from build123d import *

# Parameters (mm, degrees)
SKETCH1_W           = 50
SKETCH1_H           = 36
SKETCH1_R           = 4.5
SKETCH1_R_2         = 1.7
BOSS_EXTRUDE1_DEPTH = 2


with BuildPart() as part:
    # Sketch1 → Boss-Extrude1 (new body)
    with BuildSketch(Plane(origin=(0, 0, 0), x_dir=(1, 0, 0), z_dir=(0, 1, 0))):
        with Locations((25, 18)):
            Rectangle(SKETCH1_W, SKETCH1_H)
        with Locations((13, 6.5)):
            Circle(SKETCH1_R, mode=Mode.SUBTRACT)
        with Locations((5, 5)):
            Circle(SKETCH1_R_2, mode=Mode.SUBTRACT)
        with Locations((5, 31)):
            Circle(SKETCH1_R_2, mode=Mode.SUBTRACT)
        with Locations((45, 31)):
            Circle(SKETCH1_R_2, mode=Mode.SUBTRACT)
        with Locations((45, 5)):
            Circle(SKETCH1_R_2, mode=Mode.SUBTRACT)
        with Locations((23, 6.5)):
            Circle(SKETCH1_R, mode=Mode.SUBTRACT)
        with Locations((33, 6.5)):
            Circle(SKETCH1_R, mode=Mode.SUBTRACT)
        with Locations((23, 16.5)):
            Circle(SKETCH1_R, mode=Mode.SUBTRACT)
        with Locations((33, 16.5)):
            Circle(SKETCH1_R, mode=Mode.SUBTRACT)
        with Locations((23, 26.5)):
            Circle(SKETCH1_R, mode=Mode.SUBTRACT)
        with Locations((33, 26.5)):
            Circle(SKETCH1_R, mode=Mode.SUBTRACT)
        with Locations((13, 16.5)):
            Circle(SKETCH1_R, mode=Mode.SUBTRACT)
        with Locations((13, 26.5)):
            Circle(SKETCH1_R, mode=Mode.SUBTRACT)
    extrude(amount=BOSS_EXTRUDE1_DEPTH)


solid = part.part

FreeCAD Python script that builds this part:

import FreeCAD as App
import Part
import Sketcher

doc = App.newDocument("Part")
body = doc.addObject("PartDesign::Body", "Body")

sketch1 = body.newObject("Sketcher::SketchObject", "Sketch")
sketch1.AttachmentSupport = (doc.getObject("XZ_Plane"), [""])
sketch1.MapMode = "FlatFace"
sketch1.addGeometry(Part.LineSegment(App.Vector(0, -36, 0), App.Vector(0, 0, 0)), False)
sketch1.addGeometry(Part.LineSegment(App.Vector(0, 0, 0), App.Vector(50, 0, 0)), False)
sketch1.addGeometry(Part.LineSegment(App.Vector(50, 0, 0), App.Vector(50, -36, 0)), False)
sketch1.addGeometry(Part.LineSegment(App.Vector(50, -36, 0), App.Vector(0, -36, 0)), False)
sketch1.addGeometry(Part.Circle(App.Vector(5, -5, 0), App.Vector(0, 0, 1), 1.7), False)
sketch1.addGeometry(Part.Circle(App.Vector(13, -6.5, 0), App.Vector(0, 0, 1), 4.5), False)
sketch1.addGeometry(Part.Circle(App.Vector(23, -6.5, 0), App.Vector(0, 0, 1), 4.5), False)
sketch1.addGeometry(Part.Circle(App.Vector(13, -16.5, 0), App.Vector(0, 0, 1), 4.5), False)
sketch1.addGeometry(Part.Circle(App.Vector(23, -16.5, 0), App.Vector(0, 0, 1), 4.5), False)
sketch1.addGeometry(Part.Circle(App.Vector(33, -6.5, 0), App.Vector(0, 0, 1), 4.5), False)
sketch1.addGeometry(Part.Circle(App.Vector(45, -5, 0), App.Vector(0, 0, 1), 1.7), False)
sketch1.addGeometry(Part.Circle(App.Vector(33, -16.5, 0), App.Vector(0, 0, 1), 4.5), False)
sketch1.addGeometry(Part.Circle(App.Vector(13, -26.5, 0), App.Vector(0, 0, 1), 4.5), False)
sketch1.addGeometry(Part.Circle(App.Vector(5, -31, 0), App.Vector(0, 0, 1), 1.7), False)
sketch1.addGeometry(Part.Circle(App.Vector(23, -26.5, 0), App.Vector(0, 0, 1), 4.5), False)
sketch1.addGeometry(Part.Circle(App.Vector(33, -26.5, 0), App.Vector(0, 0, 1), 4.5), False)
sketch1.addGeometry(Part.Circle(App.Vector(45, -31, 0), App.Vector(0, 0, 1), 1.7), False)
sketch1.addConstraint(Sketcher.Constraint("Coincident", 0, 2, 1, 1))
sketch1.addConstraint(Sketcher.Constraint("Coincident", 1, 2, 2, 1))
sketch1.addConstraint(Sketcher.Constraint("Coincident", 2, 2, 3, 1))
sketch1.addConstraint(Sketcher.Constraint("Coincident", 3, 2, 0, 1))
sketch1.addConstraint(Sketcher.Constraint("Vertical", 0))
sketch1.addConstraint(Sketcher.Constraint("Horizontal", 1))
sketch1.addConstraint(Sketcher.Constraint("Vertical", 2))
sketch1.addConstraint(Sketcher.Constraint("Horizontal", 3))
sketch1.addConstraint(Sketcher.Constraint("Coincident", 0, 2, -1, 1))
sketch1.addConstraint(Sketcher.Constraint("Equal", 5, 6))
sketch1.addConstraint(Sketcher.Constraint("Equal", 6, 7))
sketch1.addConstraint(Sketcher.Constraint("Equal", 7, 8))
sketch1.addConstraint(Sketcher.Constraint("Equal", 8, 9))
sketch1.addConstraint(Sketcher.Constraint("Equal", 4, 10))
sketch1.addConstraint(Sketcher.Constraint("Equal", 9, 11))
sketch1.addConstraint(Sketcher.Constraint("Equal", 11, 12))
sketch1.addConstraint(Sketcher.Constraint("Equal", 10, 13))
sketch1.addConstraint(Sketcher.Constraint("Equal", 12, 14))
sketch1.addConstraint(Sketcher.Constraint("Equal", 14, 15))
sketch1.addConstraint(Sketcher.Constraint("Equal", 13, 16))
sketch1.addConstraint(Sketcher.Constraint("Horizontal", 5, 3, 6, 3))
sketch1.addConstraint(Sketcher.Constraint("Horizontal", 7, 3, 8, 3))
sketch1.addConstraint(Sketcher.Constraint("Horizontal", 6, 3, 9, 3))
sketch1.addConstraint(Sketcher.Constraint("Horizontal", 4, 3, 10, 3))
sketch1.addConstraint(Sketcher.Constraint("Horizontal", 8, 3, 11, 3))
sketch1.addConstraint(Sketcher.Constraint("Horizontal", 12, 3, 14, 3))
sketch1.addConstraint(Sketcher.Constraint("Horizontal", 14, 3, 15, 3))
sketch1.addConstraint(Sketcher.Constraint("Horizontal", 13, 3, 16, 3))
sketch1.addConstraint(Sketcher.Constraint("Vertical", 5, 3, 7, 3))
sketch1.addConstraint(Sketcher.Constraint("Vertical", 6, 3, 8, 3))
sketch1.addConstraint(Sketcher.Constraint("Vertical", 9, 3, 11, 3))
sketch1.addConstraint(Sketcher.Constraint("Vertical", 7, 3, 12, 3))
sketch1.addConstraint(Sketcher.Constraint("Vertical", 4, 3, 13, 3))
sketch1.addConstraint(Sketcher.Constraint("Vertical", 8, 3, 14, 3))
sketch1.addConstraint(Sketcher.Constraint("Vertical", 11, 3, 15, 3))
sketch1.addConstraint(Sketcher.Constraint("Vertical", 10, 3, 16, 3))
sketch1.addConstraint(Sketcher.Constraint("Diameter", 5, 9.0))
sketch1.addConstraint(Sketcher.Constraint("Diameter", 4, 3.4))
sketch1.addConstraint(Sketcher.Constraint("DistanceX", 1, 1, 1, 2, 50.0))
sketch1.addConstraint(Sketcher.Constraint("DistanceY", 0, 1, 0, 2, 36.0))
sketch1.addConstraint(Sketcher.Constraint("DistanceX", -1, 1, 4, 3, 5.0))
sketch1.addConstraint(Sketcher.Constraint("DistanceY", 4, 3, -1, 1, 5.0))
sketch1.addConstraint(Sketcher.Constraint("DistanceX", -1, 1, 5, 3, 13.0))
sketch1.addConstraint(Sketcher.Constraint("DistanceX", -1, 1, 6, 3, 23.0))
sketch1.addConstraint(Sketcher.Constraint("DistanceX", -1, 1, 9, 3, 33.0))
sketch1.addConstraint(Sketcher.Constraint("DistanceX", -1, 1, 10, 3, 45.0))
sketch1.addConstraint(Sketcher.Constraint("DistanceY", 13, 3, -1, 1, 31.0))
sketch1.addConstraint(Sketcher.Constraint("DistanceY", 7, 3, 5, 3, 10.0))
sketch1.addConstraint(Sketcher.Constraint("DistanceY", 12, 3, 7, 3, 10.0))
sketch1.addConstraint(Sketcher.Constraint("DistanceY", 5, 3, -1, 1, 6.5))
pad1 = body.newObject("PartDesign::Pad", "Pad")
pad1.Profile = sketch1
pad1.Length = 2
pad1.Reversed = True

doc.recompute()
